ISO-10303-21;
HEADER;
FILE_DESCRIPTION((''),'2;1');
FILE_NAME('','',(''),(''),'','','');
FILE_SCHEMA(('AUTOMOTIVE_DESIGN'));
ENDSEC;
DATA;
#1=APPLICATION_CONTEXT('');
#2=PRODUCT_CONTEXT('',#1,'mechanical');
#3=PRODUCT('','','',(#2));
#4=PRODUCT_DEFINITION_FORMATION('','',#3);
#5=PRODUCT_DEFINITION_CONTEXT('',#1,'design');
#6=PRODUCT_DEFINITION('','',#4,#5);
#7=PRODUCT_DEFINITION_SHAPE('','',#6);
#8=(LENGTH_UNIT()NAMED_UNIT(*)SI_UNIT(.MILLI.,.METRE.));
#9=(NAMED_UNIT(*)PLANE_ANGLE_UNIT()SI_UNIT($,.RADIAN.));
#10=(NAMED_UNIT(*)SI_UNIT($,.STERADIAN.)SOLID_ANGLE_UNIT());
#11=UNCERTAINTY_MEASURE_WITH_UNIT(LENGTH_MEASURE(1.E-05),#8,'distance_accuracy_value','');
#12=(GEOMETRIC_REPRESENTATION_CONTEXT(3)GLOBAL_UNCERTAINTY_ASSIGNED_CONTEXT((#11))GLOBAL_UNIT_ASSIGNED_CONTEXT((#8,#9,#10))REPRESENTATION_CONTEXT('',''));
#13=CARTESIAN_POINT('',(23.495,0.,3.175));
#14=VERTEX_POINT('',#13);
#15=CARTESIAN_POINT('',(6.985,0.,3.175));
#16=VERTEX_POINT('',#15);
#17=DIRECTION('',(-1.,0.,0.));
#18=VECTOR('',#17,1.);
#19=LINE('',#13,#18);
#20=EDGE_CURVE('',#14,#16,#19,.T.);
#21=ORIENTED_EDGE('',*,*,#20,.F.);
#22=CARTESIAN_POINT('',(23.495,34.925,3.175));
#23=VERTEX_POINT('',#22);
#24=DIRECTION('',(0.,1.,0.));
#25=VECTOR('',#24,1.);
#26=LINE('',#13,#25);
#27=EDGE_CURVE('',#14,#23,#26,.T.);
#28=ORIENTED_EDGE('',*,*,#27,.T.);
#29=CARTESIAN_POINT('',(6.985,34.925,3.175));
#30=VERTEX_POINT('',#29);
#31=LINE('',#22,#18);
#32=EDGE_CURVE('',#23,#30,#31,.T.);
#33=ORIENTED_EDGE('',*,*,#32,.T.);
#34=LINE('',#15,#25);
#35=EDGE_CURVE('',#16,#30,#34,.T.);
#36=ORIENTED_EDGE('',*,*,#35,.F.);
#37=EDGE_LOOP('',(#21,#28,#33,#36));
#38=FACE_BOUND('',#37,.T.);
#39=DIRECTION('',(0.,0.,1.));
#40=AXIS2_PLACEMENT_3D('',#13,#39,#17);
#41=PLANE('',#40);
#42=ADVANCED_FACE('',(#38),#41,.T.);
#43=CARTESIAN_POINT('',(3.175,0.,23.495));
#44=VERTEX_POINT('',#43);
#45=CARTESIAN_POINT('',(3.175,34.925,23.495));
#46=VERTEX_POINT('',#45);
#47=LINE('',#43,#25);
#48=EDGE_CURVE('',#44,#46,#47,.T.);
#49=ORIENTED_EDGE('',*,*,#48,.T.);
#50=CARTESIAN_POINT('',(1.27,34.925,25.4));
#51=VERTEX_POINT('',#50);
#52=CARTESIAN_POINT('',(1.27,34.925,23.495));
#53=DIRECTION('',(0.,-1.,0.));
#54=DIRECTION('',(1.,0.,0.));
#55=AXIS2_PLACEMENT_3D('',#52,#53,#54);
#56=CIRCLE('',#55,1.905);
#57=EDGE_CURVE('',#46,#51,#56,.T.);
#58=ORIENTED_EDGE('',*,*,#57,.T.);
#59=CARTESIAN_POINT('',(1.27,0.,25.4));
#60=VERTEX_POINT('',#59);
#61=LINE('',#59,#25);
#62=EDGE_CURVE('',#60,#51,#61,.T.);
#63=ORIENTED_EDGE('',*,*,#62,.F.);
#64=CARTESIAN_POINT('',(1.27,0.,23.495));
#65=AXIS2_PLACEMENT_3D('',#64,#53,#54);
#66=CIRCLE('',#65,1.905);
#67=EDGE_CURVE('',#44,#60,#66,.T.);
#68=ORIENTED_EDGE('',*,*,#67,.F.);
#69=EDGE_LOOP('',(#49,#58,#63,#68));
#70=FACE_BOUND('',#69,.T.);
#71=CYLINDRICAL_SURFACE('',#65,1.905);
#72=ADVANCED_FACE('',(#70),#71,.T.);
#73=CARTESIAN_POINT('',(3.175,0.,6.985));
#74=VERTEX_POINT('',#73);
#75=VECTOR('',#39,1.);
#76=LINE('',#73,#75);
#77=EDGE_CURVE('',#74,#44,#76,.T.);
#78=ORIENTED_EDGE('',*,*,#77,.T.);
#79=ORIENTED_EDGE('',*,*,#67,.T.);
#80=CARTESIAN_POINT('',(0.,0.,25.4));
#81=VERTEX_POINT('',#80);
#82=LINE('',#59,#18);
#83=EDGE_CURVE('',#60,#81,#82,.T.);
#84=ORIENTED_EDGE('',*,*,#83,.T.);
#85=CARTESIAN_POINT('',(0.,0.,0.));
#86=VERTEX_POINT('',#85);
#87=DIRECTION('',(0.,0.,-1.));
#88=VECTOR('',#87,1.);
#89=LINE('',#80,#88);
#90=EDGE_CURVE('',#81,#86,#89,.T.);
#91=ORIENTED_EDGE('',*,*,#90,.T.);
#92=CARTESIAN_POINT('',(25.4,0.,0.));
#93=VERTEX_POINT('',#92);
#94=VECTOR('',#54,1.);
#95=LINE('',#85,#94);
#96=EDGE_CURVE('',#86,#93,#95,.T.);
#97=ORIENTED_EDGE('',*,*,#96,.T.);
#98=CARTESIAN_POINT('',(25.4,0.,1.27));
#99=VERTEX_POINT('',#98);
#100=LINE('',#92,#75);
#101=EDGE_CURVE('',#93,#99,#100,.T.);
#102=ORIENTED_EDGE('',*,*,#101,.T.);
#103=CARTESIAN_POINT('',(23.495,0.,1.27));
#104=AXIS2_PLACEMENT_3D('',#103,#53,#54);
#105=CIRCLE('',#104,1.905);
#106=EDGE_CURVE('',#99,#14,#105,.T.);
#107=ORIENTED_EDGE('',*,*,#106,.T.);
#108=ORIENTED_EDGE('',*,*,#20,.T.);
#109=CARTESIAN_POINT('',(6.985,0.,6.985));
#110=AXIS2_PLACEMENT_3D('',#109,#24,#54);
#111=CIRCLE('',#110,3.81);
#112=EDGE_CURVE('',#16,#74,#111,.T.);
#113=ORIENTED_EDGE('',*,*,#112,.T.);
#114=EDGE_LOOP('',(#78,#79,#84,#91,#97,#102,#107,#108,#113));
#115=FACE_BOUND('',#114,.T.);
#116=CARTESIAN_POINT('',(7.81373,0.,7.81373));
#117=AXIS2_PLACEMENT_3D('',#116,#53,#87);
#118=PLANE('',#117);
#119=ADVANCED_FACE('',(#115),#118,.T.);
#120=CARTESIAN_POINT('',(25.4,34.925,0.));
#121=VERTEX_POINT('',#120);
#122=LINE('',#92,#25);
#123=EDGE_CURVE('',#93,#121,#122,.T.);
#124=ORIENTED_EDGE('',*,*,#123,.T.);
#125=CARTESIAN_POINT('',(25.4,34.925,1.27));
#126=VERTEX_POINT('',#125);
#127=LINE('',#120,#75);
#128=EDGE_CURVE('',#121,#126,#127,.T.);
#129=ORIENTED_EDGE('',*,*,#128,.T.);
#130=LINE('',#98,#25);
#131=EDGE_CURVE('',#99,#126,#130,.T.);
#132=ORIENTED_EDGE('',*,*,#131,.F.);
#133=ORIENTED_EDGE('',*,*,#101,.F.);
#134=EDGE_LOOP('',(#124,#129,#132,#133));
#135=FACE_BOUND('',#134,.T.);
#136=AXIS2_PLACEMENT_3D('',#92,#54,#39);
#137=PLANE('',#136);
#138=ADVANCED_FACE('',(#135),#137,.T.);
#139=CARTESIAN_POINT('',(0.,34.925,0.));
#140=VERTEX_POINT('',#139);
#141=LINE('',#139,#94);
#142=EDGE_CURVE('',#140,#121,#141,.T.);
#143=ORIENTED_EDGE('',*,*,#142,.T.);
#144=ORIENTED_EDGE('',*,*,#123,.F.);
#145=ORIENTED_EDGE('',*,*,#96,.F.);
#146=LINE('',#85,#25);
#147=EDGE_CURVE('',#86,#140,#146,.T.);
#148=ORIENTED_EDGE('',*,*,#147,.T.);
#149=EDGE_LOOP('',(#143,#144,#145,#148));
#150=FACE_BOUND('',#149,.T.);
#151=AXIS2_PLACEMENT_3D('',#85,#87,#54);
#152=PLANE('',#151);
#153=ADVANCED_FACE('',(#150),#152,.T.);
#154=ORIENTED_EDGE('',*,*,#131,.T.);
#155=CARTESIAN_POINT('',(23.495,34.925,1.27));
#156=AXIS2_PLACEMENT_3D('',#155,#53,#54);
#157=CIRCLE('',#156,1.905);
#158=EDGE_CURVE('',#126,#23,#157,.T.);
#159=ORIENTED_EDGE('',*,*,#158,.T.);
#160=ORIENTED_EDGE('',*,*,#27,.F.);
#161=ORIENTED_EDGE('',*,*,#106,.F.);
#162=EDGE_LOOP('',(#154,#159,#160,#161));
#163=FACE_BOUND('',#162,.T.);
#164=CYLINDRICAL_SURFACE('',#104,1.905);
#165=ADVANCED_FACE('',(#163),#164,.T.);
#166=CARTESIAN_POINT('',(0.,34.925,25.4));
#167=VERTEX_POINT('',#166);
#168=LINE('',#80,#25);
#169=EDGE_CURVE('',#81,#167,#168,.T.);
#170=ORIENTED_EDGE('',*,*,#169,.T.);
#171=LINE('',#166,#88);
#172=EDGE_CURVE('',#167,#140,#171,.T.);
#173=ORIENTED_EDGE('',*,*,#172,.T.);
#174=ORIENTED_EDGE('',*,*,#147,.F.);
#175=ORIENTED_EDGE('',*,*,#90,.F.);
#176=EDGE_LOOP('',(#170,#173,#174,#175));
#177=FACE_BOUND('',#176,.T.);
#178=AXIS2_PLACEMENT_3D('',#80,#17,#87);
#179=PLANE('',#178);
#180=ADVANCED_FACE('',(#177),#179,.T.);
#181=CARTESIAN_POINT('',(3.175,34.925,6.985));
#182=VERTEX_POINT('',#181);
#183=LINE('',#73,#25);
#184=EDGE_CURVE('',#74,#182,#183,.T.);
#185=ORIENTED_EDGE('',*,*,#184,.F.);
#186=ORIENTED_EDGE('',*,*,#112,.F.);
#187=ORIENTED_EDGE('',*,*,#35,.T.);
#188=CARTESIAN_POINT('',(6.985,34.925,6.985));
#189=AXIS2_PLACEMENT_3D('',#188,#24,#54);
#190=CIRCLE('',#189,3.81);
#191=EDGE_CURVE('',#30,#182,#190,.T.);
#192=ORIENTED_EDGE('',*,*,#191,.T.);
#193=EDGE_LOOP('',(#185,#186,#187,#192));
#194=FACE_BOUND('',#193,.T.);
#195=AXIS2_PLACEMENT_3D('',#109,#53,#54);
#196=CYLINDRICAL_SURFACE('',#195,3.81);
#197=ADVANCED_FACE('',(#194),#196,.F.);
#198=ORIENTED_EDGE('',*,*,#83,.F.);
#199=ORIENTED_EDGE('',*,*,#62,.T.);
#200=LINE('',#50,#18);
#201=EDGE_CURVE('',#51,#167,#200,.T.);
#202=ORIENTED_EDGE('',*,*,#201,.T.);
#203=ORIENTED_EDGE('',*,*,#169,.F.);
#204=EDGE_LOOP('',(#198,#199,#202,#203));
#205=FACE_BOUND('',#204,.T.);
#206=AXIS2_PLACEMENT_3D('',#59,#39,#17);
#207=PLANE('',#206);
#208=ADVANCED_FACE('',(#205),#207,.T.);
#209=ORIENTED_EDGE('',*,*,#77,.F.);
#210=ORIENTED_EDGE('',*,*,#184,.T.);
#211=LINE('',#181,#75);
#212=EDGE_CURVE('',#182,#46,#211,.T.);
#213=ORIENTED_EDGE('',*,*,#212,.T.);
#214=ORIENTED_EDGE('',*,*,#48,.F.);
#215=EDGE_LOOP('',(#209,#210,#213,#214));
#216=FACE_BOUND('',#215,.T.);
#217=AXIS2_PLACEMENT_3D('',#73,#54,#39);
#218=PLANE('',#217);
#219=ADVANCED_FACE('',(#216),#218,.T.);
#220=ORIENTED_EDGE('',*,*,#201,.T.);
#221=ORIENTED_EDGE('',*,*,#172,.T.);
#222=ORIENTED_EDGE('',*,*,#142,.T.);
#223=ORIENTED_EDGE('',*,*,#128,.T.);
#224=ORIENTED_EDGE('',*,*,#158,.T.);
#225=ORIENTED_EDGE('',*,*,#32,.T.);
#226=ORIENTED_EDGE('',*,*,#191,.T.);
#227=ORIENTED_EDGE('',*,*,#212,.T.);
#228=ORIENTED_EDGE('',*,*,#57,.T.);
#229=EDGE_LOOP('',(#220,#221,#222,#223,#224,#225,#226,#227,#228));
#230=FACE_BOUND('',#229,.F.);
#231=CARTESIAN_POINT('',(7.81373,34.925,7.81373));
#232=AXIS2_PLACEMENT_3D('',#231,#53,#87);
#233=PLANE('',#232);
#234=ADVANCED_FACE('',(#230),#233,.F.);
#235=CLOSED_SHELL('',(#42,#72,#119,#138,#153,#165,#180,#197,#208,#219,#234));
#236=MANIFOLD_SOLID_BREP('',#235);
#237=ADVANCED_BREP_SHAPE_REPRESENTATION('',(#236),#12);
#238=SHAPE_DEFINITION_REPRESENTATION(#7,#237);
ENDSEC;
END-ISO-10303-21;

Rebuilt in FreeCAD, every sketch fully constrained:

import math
import FreeCAD as App
import Part
import Sketcher
Q = App.Units.Quantity

doc = App.newDocument("Part")
body = doc.addObject("PartDesign::Body", "Body")

# Sketch on XZ plane
sketch1 = body.newObject("Sketcher::SketchObject", "Sketch")
sketch1.AttachmentSupport = (doc.getObject("XZ_Plane"), [""])
sketch1.MapMode = "FlatFace"
sketch1.addGeometry(Part.LineSegment(App.Vector(1.27, 25.4, 0), App.Vector(0, 25.4, 0)), False)
sketch1.addGeometry(Part.LineSegment(App.Vector(0, 25.4, 0), App.Vector(0, 0, 0)), False)
sketch1.addGeometry(Part.LineSegment(App.Vector(0, 0, 0), App.Vector(25.4, 0, 0)), False)
sketch1.addGeometry(Part.LineSegment(App.Vector(25.4, 0, 0), App.Vector(25.4, 1.27, 0)), False)
sketch1.addGeometry(Part.ArcOfCircle(Part.Circle(App.Vector(23.495, 1.27, 0), App.Vector(0, 0, 1), 1.905), math.radians(0), math.radians(90)), False)
sketch1.addGeometry(Part.LineSegment(App.Vector(23.495, 3.175, 0), App.Vector(6.985, 3.175, 0)), False)
sketch1.addGeometry(Part.ArcOfCircle(Part.Circle(App.Vector(6.985, 6.985, 0), App.Vector(0, 0, 1), 3.81), math.radians(180), math.radians(270)), False)
sketch1.addGeometry(Part.LineSegment(App.Vector(3.175, 6.985, 0), App.Vector(3.175, 23.495, 0)), False)
sketch1.addGeometry(Part.ArcOfCircle(Part.Circle(App.Vector(1.27, 23.495, 0), App.Vector(0, 0, 1), 1.905), math.radians(0), math.radians(90)), False)
sketch1.addConstraint(Sketcher.Constraint("Coincident", 0, 2, 1, 1))
sketch1.addConstraint(Sketcher.Constraint("Coincident", 1, 2, 2, 1))
sketch1.addConstraint(Sketcher.Constraint("Coincident", 2, 2, 3, 1))
sketch1.addConstraint(Sketcher.Constraint("Tangent", 3, 2, 4, 1))
sketch1.addConstraint(Sketcher.Constraint("Tangent", 4, 2, 5, 1))
sketch1.addConstraint(Sketcher.Constraint("Tangent", 5, 2, 6, 2))
sketch1.addConstraint(Sketcher.Constraint("Tangent", 6, 1, 7, 1))
sketch1.addConstraint(Sketcher.Constraint("Tangent", 7, 2, 8, 1))
sketch1.addConstraint(Sketcher.Constraint("Tangent", 8, 2, 0, 1))
sketch1.addConstraint(Sketcher.Constraint("Horizontal", 0))
sketch1.addConstraint(Sketcher.Constraint("Vertical", 1))
sketch1.addConstraint(Sketcher.Constraint("Horizontal", 2))
sketch1.addConstraint(Sketcher.Constraint("Vertical", 3))
sketch1.addConstraint(Sketcher.Constraint("Horizontal", 5))
sketch1.addConstraint(Sketcher.Constraint("Vertical", 7))
sketch1.addConstraint(Sketcher.Constraint("Coincident", 1, 2, -1, 1))
sketch1.addConstraint(Sketcher.Constraint("Equal", 4, 8))
sketch1.addConstraint(Sketcher.Constraint("Equal", 2, 1))
sketch1.addConstraint(Sketcher.Constraint("Equal", 0, 3))
sketch1.addConstraint(Sketcher.Constraint("DistanceX", 2, 1, 2, 2, Q("1 in")))
sketch1.addConstraint(Sketcher.Constraint("Radius", 6, Q("0.15 in")))
sketch1.addConstraint(Sketcher.Constraint("Radius", 4, Q("0.075 in")))
sketch1.addConstraint(Sketcher.Constraint("DistanceX", 0, 2, 0, 1, Q("0.05 in")))
pad1 = body.newObject("PartDesign::Pad", "Pad")
pad1.Profile = sketch1
pad1.Length = Q("1.375 in")
pad1.Reversed = True

doc.recompute()
